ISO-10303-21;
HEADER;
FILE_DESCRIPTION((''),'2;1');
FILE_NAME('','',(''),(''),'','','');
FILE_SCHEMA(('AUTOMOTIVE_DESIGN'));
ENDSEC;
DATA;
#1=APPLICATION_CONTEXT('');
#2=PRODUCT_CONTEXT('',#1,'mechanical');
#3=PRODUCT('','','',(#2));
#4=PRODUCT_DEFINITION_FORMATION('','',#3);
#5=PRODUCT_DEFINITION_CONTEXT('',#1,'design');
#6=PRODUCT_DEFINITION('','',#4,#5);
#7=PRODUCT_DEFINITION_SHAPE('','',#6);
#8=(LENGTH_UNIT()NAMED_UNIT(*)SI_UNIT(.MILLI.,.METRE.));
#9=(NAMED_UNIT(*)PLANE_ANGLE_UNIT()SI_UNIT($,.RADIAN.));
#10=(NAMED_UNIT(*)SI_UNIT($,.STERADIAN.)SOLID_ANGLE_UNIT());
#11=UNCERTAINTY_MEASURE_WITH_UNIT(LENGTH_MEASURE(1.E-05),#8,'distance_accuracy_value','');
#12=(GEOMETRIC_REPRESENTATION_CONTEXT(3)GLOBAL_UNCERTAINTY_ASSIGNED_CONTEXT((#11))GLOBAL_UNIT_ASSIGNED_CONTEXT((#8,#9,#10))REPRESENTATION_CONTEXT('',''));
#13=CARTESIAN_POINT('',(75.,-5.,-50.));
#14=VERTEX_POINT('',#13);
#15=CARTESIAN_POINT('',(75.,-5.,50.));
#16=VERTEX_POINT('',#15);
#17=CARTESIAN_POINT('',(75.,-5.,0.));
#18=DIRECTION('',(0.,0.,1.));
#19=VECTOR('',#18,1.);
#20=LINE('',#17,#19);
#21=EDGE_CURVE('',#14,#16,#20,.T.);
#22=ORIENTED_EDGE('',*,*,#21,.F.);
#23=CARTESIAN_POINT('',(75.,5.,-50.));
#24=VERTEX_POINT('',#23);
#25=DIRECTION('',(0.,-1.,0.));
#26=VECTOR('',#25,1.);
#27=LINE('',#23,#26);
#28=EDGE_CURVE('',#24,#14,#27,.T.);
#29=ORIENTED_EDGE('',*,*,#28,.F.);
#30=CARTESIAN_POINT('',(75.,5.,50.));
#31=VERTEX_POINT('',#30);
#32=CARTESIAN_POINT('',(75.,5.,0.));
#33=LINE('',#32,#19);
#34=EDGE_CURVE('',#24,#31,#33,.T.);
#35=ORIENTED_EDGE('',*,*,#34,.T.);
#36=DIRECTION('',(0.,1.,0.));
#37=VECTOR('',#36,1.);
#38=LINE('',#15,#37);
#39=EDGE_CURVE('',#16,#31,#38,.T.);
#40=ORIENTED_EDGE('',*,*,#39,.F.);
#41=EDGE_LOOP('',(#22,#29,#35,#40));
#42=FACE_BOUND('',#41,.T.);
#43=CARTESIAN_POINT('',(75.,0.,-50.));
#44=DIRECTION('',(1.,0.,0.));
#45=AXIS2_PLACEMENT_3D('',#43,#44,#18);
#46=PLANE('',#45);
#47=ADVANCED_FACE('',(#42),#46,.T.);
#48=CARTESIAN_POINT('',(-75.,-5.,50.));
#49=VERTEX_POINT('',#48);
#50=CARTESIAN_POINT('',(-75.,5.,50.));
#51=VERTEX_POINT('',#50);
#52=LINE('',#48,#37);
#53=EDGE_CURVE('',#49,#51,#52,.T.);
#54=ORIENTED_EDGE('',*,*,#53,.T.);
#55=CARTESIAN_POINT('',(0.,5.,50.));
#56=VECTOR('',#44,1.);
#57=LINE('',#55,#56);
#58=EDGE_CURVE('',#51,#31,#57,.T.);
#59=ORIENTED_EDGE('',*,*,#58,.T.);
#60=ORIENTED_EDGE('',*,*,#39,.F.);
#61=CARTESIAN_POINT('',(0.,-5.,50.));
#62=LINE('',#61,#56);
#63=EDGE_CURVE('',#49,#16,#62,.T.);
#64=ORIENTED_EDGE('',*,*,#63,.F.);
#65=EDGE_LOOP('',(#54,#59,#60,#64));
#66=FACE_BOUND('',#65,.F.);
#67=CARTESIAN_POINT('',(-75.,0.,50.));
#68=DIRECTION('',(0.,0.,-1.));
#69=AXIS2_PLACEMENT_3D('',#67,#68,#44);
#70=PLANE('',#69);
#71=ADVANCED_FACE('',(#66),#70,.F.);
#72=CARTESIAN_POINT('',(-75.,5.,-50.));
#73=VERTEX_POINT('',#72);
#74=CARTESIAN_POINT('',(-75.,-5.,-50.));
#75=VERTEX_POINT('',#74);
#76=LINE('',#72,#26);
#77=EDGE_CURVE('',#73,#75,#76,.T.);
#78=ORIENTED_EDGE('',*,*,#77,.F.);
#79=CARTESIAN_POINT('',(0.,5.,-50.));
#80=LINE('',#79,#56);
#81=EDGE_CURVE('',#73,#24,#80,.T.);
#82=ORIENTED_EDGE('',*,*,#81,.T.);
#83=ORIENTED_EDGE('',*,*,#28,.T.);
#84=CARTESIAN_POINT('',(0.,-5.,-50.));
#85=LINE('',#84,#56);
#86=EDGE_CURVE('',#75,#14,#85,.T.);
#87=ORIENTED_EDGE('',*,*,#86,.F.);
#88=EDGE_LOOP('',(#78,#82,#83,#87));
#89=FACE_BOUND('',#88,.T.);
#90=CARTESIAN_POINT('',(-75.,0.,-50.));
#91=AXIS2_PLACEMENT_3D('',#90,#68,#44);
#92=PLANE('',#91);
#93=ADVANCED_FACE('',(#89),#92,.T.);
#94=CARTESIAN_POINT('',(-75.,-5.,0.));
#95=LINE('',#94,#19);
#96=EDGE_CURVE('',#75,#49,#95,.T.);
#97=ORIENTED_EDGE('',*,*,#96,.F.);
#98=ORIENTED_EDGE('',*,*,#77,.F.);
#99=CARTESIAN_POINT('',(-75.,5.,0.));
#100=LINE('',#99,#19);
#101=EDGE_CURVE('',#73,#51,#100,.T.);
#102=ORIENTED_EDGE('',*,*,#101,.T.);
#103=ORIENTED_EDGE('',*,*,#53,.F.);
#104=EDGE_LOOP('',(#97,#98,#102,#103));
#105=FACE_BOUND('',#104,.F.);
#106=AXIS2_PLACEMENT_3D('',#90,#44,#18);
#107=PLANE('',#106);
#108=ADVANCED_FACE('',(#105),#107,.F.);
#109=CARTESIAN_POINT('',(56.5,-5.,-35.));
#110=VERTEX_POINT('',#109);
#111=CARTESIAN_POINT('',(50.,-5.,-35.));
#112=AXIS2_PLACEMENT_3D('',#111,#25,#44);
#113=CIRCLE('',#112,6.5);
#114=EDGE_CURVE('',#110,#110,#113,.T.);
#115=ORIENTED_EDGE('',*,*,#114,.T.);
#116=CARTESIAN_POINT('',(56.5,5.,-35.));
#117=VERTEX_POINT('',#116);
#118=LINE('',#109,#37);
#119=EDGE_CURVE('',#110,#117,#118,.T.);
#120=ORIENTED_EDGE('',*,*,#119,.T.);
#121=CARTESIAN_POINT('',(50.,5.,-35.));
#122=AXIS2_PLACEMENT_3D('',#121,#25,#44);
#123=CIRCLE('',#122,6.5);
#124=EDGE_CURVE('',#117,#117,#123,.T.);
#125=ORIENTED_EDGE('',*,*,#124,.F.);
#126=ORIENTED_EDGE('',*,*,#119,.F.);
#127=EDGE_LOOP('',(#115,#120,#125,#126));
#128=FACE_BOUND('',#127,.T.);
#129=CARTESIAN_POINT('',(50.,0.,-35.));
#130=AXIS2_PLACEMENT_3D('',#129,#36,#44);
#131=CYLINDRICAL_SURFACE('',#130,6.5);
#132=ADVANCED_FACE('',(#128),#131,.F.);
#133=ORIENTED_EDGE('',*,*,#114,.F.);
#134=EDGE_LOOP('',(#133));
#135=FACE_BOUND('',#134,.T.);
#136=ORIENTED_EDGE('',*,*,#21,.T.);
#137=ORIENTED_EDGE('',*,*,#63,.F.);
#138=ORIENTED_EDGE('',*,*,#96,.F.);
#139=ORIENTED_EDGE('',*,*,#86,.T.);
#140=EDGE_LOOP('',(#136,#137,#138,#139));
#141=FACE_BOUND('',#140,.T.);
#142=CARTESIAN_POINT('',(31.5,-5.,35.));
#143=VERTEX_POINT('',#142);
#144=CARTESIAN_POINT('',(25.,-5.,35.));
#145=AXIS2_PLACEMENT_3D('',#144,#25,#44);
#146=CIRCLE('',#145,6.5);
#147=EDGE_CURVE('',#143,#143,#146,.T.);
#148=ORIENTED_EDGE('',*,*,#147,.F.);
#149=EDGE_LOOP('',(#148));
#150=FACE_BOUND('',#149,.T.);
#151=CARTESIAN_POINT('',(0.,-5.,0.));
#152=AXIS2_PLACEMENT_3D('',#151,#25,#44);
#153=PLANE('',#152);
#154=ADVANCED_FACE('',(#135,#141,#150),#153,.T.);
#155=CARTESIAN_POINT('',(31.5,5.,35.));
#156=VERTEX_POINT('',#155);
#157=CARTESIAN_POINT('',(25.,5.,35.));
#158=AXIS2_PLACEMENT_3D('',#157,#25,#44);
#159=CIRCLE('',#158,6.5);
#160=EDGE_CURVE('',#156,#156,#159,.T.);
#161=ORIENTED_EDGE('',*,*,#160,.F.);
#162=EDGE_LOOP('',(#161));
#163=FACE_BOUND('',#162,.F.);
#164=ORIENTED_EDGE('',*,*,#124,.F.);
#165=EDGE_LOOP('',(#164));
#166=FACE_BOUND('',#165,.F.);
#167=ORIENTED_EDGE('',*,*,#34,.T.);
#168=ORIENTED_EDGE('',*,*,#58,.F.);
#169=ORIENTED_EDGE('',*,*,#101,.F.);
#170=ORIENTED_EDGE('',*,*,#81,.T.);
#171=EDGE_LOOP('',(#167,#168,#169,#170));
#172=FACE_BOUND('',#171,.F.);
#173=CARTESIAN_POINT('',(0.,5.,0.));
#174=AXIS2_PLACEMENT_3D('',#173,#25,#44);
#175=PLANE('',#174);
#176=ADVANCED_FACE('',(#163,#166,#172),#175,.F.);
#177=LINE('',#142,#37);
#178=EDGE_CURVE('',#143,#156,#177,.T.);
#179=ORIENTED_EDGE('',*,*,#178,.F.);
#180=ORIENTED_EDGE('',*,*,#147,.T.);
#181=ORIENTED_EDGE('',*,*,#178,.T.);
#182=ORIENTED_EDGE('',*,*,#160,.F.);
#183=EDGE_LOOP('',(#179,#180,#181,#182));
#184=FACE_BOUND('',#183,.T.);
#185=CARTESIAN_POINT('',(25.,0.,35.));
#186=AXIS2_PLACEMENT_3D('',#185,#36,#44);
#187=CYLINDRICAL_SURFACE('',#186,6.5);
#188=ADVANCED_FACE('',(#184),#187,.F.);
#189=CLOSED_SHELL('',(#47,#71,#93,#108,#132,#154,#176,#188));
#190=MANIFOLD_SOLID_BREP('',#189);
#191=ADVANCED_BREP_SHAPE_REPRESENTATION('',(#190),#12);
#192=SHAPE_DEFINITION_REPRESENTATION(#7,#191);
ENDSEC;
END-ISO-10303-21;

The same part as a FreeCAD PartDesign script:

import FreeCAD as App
import Part
import Sketcher
from FreeCAD import Vector
Q = App.Units.Quantity

doc = App.newDocument("Part")
params = doc.addObject("Spreadsheet::Sheet", "Params")
for row, (alias, value) in enumerate([
    ("sketch1_diameter", "13 mm"),
    ("sketch1_width", "150 mm"),
    ("sketch1_height", "100 mm"),
    ("pad1_length", "10 mm"),
], start=1):
    params.set(f"A{row}", alias)
    params.set(f"B{row}", "=" + value)
    params.setAlias(f"B{row}", alias)

body = doc.addObject("PartDesign::Body", "Body")

# Sketch on XZ plane
sketch1 = body.newObject("Sketcher::SketchObject", "Sketch")
sketch1.AttachmentSupport = (doc.getObject("XZ_Plane"), [""])
sketch1.MapMode = "FlatFace"
sketch1.addGeometry(Part.LineSegment(Vector(-75, 50, 0), Vector(-75, -50, 0)), False)
sketch1.addGeometry(Part.LineSegment(Vector(-75, -50, 0), Vector(75, -50, 0)), False)
sketch1.addGeometry(Part.LineSegment(Vector(75, -50, 0), Vector(75, 50, 0)), False)
sketch1.addGeometry(Part.LineSegment(Vector(75, 50, 0), Vector(-75, 50, 0)), False)
sketch1.addGeometry(Part.Circle(Vector(50, -35, 0), Vector(0, 0, 1), 6.5), False)
sketch1.addGeometry(Part.Circle(Vector(25, 35, 0), Vector(0, 0, 1), 6.5), False)
sketch1.addConstraint(Sketcher.Constraint("Coincident", 0, 2, 1, 1))
sketch1.addConstraint(Sketcher.Constraint("Coincident", 1, 2, 2, 1))
sketch1.addConstraint(Sketcher.Constraint("Coincident", 2, 2, 3, 1))
sketch1.addConstraint(Sketcher.Constraint("Coincident", 3, 2, 0, 1))
sketch1.addConstraint(Sketcher.Constraint("Vertical", 0))
sketch1.addConstraint(Sketcher.Constraint("Horizontal", 1))
sketch1.addConstraint(Sketcher.Constraint("Vertical", 2))
sketch1.addConstraint(Sketcher.Constraint("Horizontal", 3))
sketch1.addConstraint(Sketcher.Constraint("Equal", 4, 5))
sketch1.addConstraint(Sketcher.Constraint("Symmetric", 0, 2, 2, 2, -1, 1))
sketch1.addConstraint(Sketcher.Constraint("Diameter", 4, Q("13 mm")))
sketch1.addConstraint(Sketcher.Constraint("DistanceX", 1, 1, 1, 2, Q("150 mm")))
sketch1.addConstraint(Sketcher.Constraint("DistanceY", 0, 2, 0, 1, Q("100 mm")))
sketch1.addConstraint(Sketcher.Constraint("DistanceX", -1, 1, 4, 3, Q("50 mm")))
sketch1.addConstraint(Sketcher.Constraint("DistanceY", 4, 3, -1, 1, Q("35 mm")))
sketch1.addConstraint(Sketcher.Constraint("DistanceX", -1, 1, 5, 3, Q("25 mm")))
sketch1.addConstraint(Sketcher.Constraint("DistanceY", -1, 1, 5, 3, Q("35 mm")))
sketch1.setExpression("Constraints[10]", "Params.sketch1_diameter")
sketch1.setExpression("Constraints[11]", "Params.sketch1_width")
sketch1.setExpression("Constraints[12]", "Params.sketch1_height")
pad1 = body.newObject("PartDesign::Pad", "Pad")
pad1.Profile = sketch1
pad1.setExpression("Length", "Params.pad1_length")
pad1.Midplane = True

doc.recompute()
